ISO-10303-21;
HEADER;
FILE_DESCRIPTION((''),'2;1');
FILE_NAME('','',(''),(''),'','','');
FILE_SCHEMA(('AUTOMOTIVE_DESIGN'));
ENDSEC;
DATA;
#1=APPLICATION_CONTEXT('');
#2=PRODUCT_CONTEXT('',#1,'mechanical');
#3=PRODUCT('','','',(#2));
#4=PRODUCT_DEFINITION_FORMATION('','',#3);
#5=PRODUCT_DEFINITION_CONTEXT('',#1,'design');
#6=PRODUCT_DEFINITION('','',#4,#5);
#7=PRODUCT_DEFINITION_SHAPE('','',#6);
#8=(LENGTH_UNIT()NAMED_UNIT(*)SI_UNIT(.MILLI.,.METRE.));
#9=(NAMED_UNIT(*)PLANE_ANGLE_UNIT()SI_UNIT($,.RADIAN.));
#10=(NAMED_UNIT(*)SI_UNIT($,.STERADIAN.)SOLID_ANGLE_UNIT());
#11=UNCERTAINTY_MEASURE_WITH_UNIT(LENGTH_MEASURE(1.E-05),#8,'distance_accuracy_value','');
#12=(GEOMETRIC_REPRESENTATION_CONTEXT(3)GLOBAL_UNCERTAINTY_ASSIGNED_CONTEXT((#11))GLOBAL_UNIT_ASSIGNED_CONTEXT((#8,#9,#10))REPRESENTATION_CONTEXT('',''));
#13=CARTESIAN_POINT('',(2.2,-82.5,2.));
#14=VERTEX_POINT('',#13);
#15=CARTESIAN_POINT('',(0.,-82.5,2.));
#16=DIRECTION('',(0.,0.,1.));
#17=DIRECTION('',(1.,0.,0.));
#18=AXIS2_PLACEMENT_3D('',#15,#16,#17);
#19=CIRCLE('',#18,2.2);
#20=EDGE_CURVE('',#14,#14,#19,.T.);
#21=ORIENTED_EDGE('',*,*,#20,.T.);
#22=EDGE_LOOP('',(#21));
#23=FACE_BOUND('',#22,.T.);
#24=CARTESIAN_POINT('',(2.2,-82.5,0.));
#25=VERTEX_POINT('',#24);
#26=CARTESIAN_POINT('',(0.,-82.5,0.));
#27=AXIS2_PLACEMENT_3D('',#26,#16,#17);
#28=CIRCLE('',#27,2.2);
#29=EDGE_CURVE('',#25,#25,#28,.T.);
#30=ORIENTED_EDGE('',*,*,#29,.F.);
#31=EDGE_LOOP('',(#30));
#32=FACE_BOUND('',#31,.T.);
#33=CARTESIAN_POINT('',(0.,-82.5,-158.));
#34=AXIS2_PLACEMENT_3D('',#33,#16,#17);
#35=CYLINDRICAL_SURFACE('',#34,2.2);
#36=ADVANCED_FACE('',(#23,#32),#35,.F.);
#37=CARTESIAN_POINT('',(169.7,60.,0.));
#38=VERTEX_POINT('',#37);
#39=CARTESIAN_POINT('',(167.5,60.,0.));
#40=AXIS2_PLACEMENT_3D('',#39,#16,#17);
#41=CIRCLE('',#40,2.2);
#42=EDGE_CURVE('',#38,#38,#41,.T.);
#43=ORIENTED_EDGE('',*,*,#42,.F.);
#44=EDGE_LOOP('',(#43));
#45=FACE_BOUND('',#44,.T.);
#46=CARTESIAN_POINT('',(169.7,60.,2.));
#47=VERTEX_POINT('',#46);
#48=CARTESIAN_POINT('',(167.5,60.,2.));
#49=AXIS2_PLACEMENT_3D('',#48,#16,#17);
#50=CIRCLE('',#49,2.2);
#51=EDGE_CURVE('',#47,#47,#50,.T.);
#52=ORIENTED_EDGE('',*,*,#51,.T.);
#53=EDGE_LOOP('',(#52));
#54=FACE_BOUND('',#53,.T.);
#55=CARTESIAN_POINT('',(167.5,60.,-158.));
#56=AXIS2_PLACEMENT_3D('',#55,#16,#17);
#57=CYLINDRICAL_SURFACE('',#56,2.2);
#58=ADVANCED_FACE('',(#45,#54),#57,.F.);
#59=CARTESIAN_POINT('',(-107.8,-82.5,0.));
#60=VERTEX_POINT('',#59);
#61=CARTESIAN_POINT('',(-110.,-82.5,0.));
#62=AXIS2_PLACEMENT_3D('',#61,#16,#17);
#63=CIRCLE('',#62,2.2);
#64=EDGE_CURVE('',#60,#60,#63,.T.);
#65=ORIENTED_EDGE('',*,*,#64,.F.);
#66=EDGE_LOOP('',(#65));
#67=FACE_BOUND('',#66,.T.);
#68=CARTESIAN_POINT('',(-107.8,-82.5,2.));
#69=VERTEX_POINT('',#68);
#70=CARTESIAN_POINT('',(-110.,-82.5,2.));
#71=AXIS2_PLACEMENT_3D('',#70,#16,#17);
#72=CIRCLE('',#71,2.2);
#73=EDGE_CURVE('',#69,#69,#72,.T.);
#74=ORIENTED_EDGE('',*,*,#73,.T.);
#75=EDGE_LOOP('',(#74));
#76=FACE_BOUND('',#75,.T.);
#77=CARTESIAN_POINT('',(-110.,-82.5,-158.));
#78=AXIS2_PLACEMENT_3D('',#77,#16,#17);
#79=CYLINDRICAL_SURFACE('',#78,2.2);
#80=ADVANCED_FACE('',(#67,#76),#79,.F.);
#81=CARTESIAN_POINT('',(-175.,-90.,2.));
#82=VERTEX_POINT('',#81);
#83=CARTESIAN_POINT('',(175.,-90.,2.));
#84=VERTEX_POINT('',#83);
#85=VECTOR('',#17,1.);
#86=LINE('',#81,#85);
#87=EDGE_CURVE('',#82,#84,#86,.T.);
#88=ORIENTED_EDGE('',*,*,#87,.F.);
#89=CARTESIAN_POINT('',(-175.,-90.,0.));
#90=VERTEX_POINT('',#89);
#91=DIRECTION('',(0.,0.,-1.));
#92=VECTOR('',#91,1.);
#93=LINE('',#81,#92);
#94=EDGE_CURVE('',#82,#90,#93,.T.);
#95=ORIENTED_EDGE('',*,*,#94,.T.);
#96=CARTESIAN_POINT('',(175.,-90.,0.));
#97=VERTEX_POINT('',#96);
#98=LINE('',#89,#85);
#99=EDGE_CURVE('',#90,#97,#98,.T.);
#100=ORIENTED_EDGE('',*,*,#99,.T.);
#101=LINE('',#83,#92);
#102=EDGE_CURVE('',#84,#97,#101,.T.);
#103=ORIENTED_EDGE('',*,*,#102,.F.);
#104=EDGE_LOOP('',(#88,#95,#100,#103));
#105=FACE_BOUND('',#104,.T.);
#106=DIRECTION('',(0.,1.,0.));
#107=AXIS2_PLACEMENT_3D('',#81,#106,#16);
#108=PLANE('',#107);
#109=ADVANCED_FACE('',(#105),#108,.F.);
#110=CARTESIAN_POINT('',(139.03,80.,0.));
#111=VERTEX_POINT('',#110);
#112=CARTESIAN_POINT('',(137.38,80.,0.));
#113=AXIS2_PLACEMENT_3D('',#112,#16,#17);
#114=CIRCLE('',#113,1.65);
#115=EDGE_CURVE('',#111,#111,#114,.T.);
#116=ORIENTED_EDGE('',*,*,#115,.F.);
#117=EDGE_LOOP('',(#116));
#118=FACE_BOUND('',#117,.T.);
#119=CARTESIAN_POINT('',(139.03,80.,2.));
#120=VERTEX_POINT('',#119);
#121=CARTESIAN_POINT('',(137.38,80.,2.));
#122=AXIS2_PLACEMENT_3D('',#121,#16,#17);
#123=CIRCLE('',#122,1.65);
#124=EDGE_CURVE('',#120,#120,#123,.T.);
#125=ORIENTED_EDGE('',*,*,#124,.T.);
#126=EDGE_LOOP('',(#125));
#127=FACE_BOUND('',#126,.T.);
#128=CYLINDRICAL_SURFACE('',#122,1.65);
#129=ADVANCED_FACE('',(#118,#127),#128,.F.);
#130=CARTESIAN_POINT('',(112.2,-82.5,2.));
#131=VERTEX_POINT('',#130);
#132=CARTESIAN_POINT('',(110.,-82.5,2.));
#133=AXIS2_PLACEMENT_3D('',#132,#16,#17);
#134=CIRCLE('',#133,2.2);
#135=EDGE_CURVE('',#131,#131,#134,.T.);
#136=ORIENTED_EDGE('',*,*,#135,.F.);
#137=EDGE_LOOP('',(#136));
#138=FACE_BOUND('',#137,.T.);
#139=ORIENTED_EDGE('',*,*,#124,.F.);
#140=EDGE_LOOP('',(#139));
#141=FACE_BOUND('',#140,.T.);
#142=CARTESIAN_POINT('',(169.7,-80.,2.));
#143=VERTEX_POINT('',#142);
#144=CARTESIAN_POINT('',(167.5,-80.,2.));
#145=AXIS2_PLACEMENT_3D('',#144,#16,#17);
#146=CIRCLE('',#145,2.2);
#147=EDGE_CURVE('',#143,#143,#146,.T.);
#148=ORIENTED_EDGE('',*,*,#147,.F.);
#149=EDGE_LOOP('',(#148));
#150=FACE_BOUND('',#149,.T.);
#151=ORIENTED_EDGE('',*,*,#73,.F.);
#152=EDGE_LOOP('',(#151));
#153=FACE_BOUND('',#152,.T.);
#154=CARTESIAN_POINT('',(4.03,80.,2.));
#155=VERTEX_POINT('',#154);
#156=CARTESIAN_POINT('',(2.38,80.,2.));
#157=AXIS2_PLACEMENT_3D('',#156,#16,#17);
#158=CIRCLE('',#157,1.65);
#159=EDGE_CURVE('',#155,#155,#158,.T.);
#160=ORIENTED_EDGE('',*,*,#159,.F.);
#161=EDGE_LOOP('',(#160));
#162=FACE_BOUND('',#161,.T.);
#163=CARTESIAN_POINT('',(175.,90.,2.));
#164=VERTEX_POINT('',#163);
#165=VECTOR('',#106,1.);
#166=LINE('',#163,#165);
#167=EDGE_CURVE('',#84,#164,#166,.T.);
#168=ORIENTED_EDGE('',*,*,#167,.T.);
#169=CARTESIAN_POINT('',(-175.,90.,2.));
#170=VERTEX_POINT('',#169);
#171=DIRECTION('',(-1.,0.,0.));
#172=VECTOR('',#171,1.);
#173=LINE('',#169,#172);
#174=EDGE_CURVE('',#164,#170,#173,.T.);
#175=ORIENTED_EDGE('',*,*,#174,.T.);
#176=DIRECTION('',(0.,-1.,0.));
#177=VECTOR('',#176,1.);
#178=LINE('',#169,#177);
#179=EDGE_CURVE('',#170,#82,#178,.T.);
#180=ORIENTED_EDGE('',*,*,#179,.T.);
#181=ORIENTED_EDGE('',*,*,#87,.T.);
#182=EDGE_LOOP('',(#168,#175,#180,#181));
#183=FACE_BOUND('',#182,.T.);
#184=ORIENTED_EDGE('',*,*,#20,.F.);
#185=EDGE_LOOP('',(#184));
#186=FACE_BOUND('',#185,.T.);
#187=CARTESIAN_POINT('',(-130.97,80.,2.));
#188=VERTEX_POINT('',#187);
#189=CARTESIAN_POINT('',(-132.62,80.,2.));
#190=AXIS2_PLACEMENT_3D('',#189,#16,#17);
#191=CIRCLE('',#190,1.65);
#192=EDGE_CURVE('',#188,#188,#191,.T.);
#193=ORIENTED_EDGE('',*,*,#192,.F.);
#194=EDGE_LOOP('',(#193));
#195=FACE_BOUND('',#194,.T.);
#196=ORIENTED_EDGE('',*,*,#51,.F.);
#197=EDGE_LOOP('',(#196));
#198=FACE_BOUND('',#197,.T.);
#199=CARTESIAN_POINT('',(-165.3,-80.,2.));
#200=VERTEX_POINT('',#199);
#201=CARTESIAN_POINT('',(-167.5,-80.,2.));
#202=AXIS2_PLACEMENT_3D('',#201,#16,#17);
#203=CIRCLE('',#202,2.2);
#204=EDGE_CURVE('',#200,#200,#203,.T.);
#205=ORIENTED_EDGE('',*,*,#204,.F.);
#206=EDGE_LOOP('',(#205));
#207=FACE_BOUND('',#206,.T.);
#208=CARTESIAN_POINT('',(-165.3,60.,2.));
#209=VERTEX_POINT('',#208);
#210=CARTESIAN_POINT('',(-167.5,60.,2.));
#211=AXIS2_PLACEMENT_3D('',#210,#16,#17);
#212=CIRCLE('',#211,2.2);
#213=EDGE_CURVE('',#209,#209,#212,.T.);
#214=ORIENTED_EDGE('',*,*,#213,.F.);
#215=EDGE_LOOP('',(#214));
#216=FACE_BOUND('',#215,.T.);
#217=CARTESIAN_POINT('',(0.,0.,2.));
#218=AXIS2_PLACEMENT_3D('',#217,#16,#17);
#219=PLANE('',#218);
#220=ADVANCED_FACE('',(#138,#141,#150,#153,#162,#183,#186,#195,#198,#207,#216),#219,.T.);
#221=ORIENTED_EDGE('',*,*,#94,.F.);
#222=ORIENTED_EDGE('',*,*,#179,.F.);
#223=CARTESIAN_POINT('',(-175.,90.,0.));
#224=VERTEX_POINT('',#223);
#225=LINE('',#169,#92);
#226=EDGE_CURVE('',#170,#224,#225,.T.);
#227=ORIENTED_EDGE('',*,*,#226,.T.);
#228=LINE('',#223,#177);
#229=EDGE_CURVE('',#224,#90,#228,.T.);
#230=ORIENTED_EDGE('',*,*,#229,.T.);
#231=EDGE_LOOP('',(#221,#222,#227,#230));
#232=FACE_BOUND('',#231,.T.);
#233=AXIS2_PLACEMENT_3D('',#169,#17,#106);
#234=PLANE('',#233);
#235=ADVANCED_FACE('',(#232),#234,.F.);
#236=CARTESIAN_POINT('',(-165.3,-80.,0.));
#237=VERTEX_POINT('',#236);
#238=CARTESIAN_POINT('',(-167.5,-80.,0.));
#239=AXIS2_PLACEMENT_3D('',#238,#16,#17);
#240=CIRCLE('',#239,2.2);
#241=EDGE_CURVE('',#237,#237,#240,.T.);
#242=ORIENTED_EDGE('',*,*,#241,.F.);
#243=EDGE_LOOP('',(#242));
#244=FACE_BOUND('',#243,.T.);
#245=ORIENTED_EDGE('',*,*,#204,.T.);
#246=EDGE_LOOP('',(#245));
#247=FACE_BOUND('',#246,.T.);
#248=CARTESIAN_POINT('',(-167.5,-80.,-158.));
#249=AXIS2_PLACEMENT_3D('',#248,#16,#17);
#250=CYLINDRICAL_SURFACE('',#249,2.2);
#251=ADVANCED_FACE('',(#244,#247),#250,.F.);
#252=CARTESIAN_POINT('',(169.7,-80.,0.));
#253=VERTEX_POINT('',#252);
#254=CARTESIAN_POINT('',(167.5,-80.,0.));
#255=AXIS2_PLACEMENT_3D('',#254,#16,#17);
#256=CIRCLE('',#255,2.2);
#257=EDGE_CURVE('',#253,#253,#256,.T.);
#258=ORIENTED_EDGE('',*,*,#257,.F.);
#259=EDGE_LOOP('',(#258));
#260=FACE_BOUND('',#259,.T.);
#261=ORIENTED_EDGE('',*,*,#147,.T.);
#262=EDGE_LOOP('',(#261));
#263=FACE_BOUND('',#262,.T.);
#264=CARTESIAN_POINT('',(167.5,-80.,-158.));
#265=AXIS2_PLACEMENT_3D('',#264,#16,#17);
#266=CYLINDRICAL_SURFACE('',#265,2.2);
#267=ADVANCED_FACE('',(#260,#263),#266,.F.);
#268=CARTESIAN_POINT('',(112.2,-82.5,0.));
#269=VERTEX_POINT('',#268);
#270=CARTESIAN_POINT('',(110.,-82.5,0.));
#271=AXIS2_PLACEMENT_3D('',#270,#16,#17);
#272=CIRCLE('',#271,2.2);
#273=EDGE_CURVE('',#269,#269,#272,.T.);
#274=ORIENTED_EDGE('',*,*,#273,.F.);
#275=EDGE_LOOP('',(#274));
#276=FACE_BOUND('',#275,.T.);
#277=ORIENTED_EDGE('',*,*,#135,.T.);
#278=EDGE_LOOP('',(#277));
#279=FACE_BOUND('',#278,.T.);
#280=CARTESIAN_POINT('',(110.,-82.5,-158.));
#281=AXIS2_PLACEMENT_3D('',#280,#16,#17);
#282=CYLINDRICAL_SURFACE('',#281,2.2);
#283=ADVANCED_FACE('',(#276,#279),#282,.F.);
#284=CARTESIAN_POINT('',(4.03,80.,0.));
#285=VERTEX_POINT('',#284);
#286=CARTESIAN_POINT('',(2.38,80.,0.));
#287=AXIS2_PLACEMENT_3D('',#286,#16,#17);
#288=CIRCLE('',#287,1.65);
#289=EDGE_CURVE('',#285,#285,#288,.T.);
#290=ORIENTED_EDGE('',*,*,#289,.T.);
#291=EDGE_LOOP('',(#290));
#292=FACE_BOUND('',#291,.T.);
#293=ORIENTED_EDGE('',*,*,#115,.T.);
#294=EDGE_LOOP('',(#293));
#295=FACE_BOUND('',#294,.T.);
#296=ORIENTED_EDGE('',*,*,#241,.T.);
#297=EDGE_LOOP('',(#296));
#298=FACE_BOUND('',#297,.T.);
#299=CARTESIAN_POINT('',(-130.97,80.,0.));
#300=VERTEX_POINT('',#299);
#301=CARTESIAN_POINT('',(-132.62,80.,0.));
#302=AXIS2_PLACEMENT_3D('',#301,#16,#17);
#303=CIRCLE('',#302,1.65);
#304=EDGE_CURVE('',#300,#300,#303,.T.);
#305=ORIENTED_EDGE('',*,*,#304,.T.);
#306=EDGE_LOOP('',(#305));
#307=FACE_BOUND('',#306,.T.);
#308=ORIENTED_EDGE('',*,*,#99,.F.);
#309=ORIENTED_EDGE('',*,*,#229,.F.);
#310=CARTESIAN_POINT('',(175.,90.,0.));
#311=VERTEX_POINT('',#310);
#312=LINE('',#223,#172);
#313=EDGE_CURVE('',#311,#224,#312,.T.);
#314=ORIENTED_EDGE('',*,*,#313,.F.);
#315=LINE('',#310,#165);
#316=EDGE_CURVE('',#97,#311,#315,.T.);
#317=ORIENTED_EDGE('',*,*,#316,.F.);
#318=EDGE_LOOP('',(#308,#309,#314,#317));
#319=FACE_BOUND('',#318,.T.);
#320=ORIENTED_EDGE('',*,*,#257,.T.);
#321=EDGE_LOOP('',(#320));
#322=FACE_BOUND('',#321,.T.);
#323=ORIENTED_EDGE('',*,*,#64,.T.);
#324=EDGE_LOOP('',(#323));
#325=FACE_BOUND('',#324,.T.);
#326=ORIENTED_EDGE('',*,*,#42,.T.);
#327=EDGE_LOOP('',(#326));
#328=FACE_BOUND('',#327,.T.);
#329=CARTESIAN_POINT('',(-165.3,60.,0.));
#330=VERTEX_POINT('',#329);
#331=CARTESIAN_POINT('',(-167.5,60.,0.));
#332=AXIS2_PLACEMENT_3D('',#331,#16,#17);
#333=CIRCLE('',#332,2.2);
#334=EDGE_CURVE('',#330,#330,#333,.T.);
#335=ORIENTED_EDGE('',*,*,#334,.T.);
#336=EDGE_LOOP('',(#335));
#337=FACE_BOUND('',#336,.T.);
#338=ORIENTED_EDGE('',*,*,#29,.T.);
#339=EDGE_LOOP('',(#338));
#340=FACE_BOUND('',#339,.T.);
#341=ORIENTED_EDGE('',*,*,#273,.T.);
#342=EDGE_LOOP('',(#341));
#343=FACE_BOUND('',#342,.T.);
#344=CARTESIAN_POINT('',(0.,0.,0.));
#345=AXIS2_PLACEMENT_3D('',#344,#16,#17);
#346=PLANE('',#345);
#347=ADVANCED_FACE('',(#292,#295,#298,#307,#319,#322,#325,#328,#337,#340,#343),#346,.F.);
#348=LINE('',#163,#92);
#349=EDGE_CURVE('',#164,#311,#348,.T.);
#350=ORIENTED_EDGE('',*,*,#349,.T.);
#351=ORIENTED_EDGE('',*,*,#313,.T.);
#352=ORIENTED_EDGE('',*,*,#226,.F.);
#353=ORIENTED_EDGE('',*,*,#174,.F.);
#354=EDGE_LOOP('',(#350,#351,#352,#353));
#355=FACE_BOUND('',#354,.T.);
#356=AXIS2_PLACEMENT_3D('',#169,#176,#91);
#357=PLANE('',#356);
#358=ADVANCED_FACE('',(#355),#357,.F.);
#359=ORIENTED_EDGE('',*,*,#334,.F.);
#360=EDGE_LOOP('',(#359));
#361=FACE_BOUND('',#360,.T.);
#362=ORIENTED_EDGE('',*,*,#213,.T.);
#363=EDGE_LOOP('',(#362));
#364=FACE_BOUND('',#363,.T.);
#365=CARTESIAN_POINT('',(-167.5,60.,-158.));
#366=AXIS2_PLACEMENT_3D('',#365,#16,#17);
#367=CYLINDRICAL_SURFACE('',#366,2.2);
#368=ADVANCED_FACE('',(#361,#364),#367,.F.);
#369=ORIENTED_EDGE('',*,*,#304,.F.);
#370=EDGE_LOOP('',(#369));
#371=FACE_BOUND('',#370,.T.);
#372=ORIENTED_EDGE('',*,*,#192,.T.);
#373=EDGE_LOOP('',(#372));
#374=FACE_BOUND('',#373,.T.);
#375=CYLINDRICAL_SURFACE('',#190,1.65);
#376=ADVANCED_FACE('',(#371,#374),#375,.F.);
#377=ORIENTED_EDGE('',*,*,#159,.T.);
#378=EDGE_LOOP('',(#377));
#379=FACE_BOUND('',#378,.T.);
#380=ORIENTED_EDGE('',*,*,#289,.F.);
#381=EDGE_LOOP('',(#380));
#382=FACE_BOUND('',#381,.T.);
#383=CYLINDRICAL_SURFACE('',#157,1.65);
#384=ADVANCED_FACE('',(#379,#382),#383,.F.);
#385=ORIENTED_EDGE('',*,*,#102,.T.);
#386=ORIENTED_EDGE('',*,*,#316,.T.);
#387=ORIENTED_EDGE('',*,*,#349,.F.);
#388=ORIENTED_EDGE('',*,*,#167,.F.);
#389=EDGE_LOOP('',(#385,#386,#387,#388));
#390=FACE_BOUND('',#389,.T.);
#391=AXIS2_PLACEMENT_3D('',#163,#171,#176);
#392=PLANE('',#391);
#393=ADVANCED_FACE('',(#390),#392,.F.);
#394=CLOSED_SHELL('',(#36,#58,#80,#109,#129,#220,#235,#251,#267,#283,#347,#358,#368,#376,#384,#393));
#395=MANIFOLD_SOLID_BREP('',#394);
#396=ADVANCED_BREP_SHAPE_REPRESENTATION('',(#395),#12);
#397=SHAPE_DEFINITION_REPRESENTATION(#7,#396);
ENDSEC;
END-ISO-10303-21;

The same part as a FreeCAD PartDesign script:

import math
import FreeCAD as App
import Part
import Sketcher
Q = App.Units.Quantity

doc = App.newDocument("Part")
params = doc.addObject("Spreadsheet::Sheet", "Params")
for row, (alias, value) in enumerate([
    ("sketch1_width", "350 mm"),
    ("sketch1_height", "180 mm"),
    ("pad1_length", "2 mm"),
    ("sketch2_radius", "1 mm"),
    ("pocket1_length", "2 mm"),
    ("sketch3_diameter", "4.4 mm"),
    ("pocket2_length", "160 mm"),
    ("sketch4_diameter", "4.4 mm"),
    ("pocket3_length", "160 mm"),
    ("sketch5_diameter", "2 mm"),
    ("pocket4_length", "10 mm"),
    ("sketch6_diameter", "3.3 mm"),
    ("hole_diameter", "3.3 mm"),
], start=1):
    params.set(f"A{row}", alias)
    params.set(f"B{row}", "=" + value)
    params.setAlias(f"B{row}", alias)

body = doc.addObject("PartDesign::Body", "Body")

# Sketch on XY plane
sketch1 = body.newObject("Sketcher::SketchObject", "Sketch")
sketch1.AttachmentSupport = (doc.getObject("XY_Plane"), [""])
sketch1.MapMode = "FlatFace"
sketch1.addGeometry([
    Part.LineSegment(App.Vector(-175, 90, 0), App.Vector(-175, -90, 0)),
    Part.LineSegment(App.Vector(-175, -90, 0), App.Vector(175, -90, 0)),
    Part.LineSegment(App.Vector(175, -90, 0), App.Vector(175, 90, 0)),
    Part.LineSegment(App.Vector(175, 90, 0), App.Vector(-175, 90, 0)),
], False)
sketch1.addConstraint([
    Sketcher.Constraint("Coincident", 0, 2, 1, 1),
    Sketcher.Constraint("Coincident", 1, 2, 2, 1),
    Sketcher.Constraint("Coincident", 2, 2, 3, 1),
    Sketcher.Constraint("Coincident", 3, 2, 0, 1),
    Sketcher.Constraint("Vertical", 0),
    Sketcher.Constraint("Horizontal", 1),
    Sketcher.Constraint("Vertical", 2),
    Sketcher.Constraint("Horizontal", 3),
    Sketcher.Constraint("Symmetric", 0, 2, 2, 2, -1, 1),
    Sketcher.Constraint("DistanceX", 1, 1, 1, 2, Q("350 mm")),
    Sketcher.Constraint("DistanceY", 0, 2, 0, 1, Q("180 mm")),
])
sketch1.setExpression("Constraints[9]", "Params.sketch1_width")
sketch1.setExpression("Constraints[10]", "Params.sketch1_height")
pad1 = body.newObject("PartDesign::Pad", "Pad")
pad1.Profile = sketch1
pad1.setExpression("Length", "Params.pad1_length")

# Sketch on XY plane
sketch2 = body.newObject("Sketcher::SketchObject", "Sketch001")
sketch2.AttachmentSupport = (doc.getObject("XY_Plane"), [""])
sketch2.MapMode = "FlatFace"
sketch2.AttachmentOffset = App.Placement(App.Vector(0, 0, 2), App.Rotation())
sketch2.addGeometry([
    Part.ArcOfCircle(Part.Circle(App.Vector(-132.6, 80, 0), App.Vector(0, 0, 1), 1), math.radians(0), math.radians(90)),  # 0
    Part.ArcOfCircle(Part.Circle(App.Vector(-132.6, 80, 0), App.Vector(0, 0, 1), 1), math.radians(90), math.radians(180)),  # 1
    Part.ArcOfCircle(Part.Circle(App.Vector(-132.6, 80, 0), App.Vector(0, 0, 1), 1), math.radians(180), math.radians(360)),  # 2
    Part.ArcOfCircle(Part.Circle(App.Vector(137.4, 80, 0), App.Vector(0, 0, 1), 1), math.radians(0), math.radians(90)),  # 3
    Part.ArcOfCircle(Part.Circle(App.Vector(137.4, 80, 0), App.Vector(0, 0, 1), 1), math.radians(90), math.radians(360)),  # 4
], False)
sketch2.addConstraint([
    Sketcher.Constraint("Tangent", 0, 2, 1, 1),
    Sketcher.Constraint("Tangent", 1, 2, 2, 1),
    Sketcher.Constraint("Tangent", 2, 2, 0, 1),
    Sketcher.Constraint("Tangent", 3, 1, 4, 2),
    Sketcher.Constraint("Coincident", 4, 1, 3, 2),
    Sketcher.Constraint("Equal", 2, 3),
    Sketcher.Constraint("Horizontal", 2, 3, 3, 3),
    Sketcher.Constraint("Horizontal", 4, 3, 1, 2),
    Sketcher.Constraint("Horizontal", 1, 2, 2, 2),
    Sketcher.Constraint("Horizontal", 2, 2, 3, 1),
    Sketcher.Constraint("Vertical", 2, 3, 0, 2),
    Sketcher.Constraint("Vertical", 3, 3, 4, 1),
    Sketcher.Constraint("Radius", 0, Q("1 mm")),
    Sketcher.Constraint("DistanceY", -1, 1, 0, 3, Q("80 mm")),
    Sketcher.Constraint("DistanceX", 1, 3, 3, 3, Q("270 mm")),
    Sketcher.Constraint("DistanceX", 0, 3, -1, 1, Q("132.62 mm")),
])
sketch2.setExpression("Constraints[12]", "Params.sketch2_radius")
pocket1 = body.newObject("PartDesign::Pocket", "Pocket")
pocket1.Profile = sketch2
pocket1.setExpression("Length", "Params.pocket1_length")

# Sketch on XY plane
sketch3 = body.newObject("Sketcher::SketchObject", "Sketch002")
sketch3.AttachmentSupport = (doc.getObject("XY_Plane"), [""])
sketch3.MapMode = "FlatFace"
sketch3.AttachmentOffset = App.Placement(App.Vector(0, 0, 2), App.Rotation())
sketch3.addGeometry([
    Part.Circle(App.Vector(-167.5, 60, 0), App.Vector(0, 0, 1), 2.2),
    Part.Circle(App.Vector(-167.5, -80, 0), App.Vector(0, 0, 1), 2.2),
    Part.Circle(App.Vector(167.5, 60, 0), App.Vector(0, 0, 1), 2.2),
    Part.Circle(App.Vector(167.5, -80, 0), App.Vector(0, 0, 1), 2.2),
], False)
sketch3.addConstraint([
    Sketcher.Constraint("Equal", 0, 1),
    Sketcher.Constraint("Equal", 1, 2),
    Sketcher.Constraint("Equal", 2, 3),
    Sketcher.Constraint("Symmetric", 0, 3, 2, 3, -2),
    Sketcher.Constraint("Symmetric", 1, 3, 3, 3, -2),
    Sketcher.Constraint("Vertical", 0, 3, 1, 3),
    Sketcher.Constraint("Diameter", 0, Q("4.4 mm")),
    Sketcher.Constraint("DistanceY", -1, 1, 0, 3, Q("60 mm")),
    Sketcher.Constraint("DistanceY", 1, 3, -1, 1, Q("80 mm")),
    Sketcher.Constraint("DistanceX", 0, 3, 2, 3, Q("335 mm")),
])
sketch3.setExpression("Constraints[6]", "Params.sketch3_diameter")
pocket2 = body.newObject("PartDesign::Pocket", "Pocket001")
pocket2.Profile = sketch3
pocket2.setExpression("Length", "Params.pocket2_length")

# Sketch on XY plane
sketch4 = body.newObject("Sketcher::SketchObject", "Sketch003")
sketch4.AttachmentSupport = (doc.getObject("XY_Plane"), [""])
sketch4.MapMode = "FlatFace"
sketch4.AttachmentOffset = App.Placement(App.Vector(0, 0, 2), App.Rotation())
sketch4.addGeometry([
    Part.Circle(App.Vector(-110, -82.5, 0), App.Vector(0, 0, 1), 2.2),
    Part.Circle(App.Vector(0, -82.5, 0), App.Vector(0, 0, 1), 2.2),
    Part.Circle(App.Vector(110, -82.5, 0), App.Vector(0, 0, 1), 2.2),
], False)
sketch4.addConstraint([
    Sketcher.Constraint("Equal", 0, 1),
    Sketcher.Constraint("Equal", 1, 2),
    Sketcher.Constraint("Symmetric", 0, 3, 2, 3, -2),
    Sketcher.Constraint("PointOnObject", 1, 3, -2),
    Sketcher.Constraint("Horizontal", 0, 3, 1, 3),
    Sketcher.Constraint("Diameter", 0, Q("4.4 mm")),
    Sketcher.Constraint("DistanceX", 0, 3, -1, 1, Q("110 mm")),
    Sketcher.Constraint("DistanceY", 0, 3, -1, 1, Q("82.5 mm")),
])
sketch4.setExpression("Constraints[5]", "Params.sketch4_diameter")
pocket3 = body.newObject("PartDesign::Pocket", "Pocket002")
pocket3.Profile = sketch4
pocket3.setExpression("Length", "Params.pocket3_length")

# Sketch on XY plane
sketch5 = body.newObject("Sketcher::SketchObject", "Sketch004")
sketch5.AttachmentSupport = (doc.getObject("XY_Plane"), [""])
sketch5.MapMode = "FlatFace"
sketch5.AttachmentOffset = App.Placement(App.Vector(0, 0, 2), App.Rotation())
sketch5.addGeometry(Part.Circle(App.Vector(2.4, 80, 0), App.Vector(0, 0, 1), 1), False)
sketch5.addConstraint([
    Sketcher.Constraint("Diameter", 0, Q("2 mm")),
    Sketcher.Constraint("DistanceY", -1, 1, 0, 3, Q("80 mm")),
    Sketcher.Constraint("DistanceX", -1, 1, 0, 3, Q("2.38 mm")),
])
sketch5.setExpression("Constraints[0]", "Params.sketch5_diameter")
pocket4 = body.newObject("PartDesign::Pocket", "Pocket003")
pocket4.Profile = sketch5
pocket4.setExpression("Length", "Params.pocket4_length")

# Sketch on XY plane
sketch6 = body.newObject("Sketcher::SketchObject", "Sketch005")
sketch6.AttachmentSupport = (doc.getObject("XY_Plane"), [""])
sketch6.MapMode = "FlatFace"
sketch6.AttachmentOffset = App.Placement(App.Vector(0, 0, 2), App.Rotation())
sketch6.addGeometry([
    Part.Circle(App.Vector(-132.6, 80, 0), App.Vector(0, 0, 1), 1.6),
    Part.Circle(App.Vector(2.4, 80, 0), App.Vector(0, 0, 1), 1.6),
    Part.Circle(App.Vector(137.4, 80, 0), App.Vector(0, 0, 1), 1.6),
], False)
sketch6.addConstraint([
    Sketcher.Constraint("Equal", 0, 1),
    Sketcher.Constraint("Equal", 1, 2),
    Sketcher.Constraint("Horizontal", 0, 3, 1, 3),
    Sketcher.Constraint("Horizontal", 1, 3, 2, 3),
    Sketcher.Constraint("Diameter", 0, Q("3.3 mm")),
    Sketcher.Constraint("DistanceY", -1, 1, 0, 3, Q("80 mm")),
    Sketcher.Constraint("DistanceX", 0, 3, 1, 3, Q("135 mm")),
    Sketcher.Constraint("DistanceX", 1, 3, 2, 3, Q("135 mm")),
    Sketcher.Constraint("DistanceX", 0, 3, -1, 1, Q("132.62 mm")),
])
sketch6.setExpression("Constraints[4]", "Params.sketch6_diameter")
doc.recompute()
hole = body.newObject("PartDesign::Hole", "Hole")
hole.Profile = sketch6
hole.ThreadType = "None"
hole.setExpression("Diameter", "Params.hole_diameter")
hole.DepthType = "ThroughAll"

doc.recompute()
